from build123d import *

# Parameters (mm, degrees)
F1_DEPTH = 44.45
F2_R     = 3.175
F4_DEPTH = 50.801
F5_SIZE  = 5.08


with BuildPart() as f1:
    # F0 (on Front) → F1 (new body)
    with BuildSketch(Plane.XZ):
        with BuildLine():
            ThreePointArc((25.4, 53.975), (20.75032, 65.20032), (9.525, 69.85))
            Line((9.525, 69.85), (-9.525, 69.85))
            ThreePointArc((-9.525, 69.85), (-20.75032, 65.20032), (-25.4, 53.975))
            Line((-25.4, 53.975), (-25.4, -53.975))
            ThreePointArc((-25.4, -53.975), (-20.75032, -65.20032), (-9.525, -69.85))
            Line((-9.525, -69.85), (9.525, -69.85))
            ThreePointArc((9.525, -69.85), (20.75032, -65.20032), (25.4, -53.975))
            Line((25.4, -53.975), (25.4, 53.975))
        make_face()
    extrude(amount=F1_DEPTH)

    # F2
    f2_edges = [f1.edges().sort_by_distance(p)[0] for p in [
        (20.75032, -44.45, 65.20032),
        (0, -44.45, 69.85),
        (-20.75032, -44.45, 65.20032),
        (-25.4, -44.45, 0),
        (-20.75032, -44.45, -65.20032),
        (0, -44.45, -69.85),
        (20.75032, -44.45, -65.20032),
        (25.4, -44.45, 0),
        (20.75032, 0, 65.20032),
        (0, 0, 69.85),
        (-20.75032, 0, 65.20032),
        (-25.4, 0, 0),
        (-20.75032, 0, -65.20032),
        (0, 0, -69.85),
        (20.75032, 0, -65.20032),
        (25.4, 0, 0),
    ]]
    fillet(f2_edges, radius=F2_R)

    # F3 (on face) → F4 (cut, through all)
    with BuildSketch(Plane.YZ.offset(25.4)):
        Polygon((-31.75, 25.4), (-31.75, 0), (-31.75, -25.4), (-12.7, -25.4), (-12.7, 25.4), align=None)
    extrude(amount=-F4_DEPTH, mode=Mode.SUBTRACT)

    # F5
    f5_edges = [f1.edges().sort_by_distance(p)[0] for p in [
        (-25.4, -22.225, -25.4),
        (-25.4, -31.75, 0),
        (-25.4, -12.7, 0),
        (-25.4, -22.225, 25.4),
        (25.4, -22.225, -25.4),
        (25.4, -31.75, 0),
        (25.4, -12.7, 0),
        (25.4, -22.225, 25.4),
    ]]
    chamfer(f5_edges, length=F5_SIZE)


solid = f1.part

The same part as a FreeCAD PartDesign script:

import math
import FreeCAD as App
import Part
import Sketcher

V = App.Vector
Q = App.Units.Quantity


def edges_at(feature, points):
    """Names of the edges that pass closest to the given points."""
    edges = feature.Shape.Edges
    near = lambda p: min(range(len(edges)), key=lambda i: edges[i].distToShape(Part.Vertex(*p))[0])
    return sorted({f"Edge{near(p) + 1}" for p in points})

doc = App.newDocument("Part")
body = doc.addObject("PartDesign::Body", "Body")

# Sketch on XZ plane
sketch1 = doc.addObject("Sketcher::SketchObject", "Sketch")
body.addObject(sketch1)
sketch1.AttachmentSupport = (doc.XZ_Plane, [""])
sketch1.MapMode = "FlatFace"
sketch1.addGeometry(Part.ArcOfCircle(Part.Circle(V(9.524999, 53.974999, 0), V(0, 0, 1), 15.875001), math.radians(0.000002), math.radians(89.999998)), False)
sketch1.addGeometry(Part.LineSegment(V(9.525, 69.85, 0), V(-9.525, 69.85, 0)), False)
sketch1.addGeometry(Part.ArcOfCircle(Part.Circle(V(-9.524999, 53.974999, 0), V(0, 0, 1), 15.875001), math.radians(90.000002), math.radians(179.999998)), False)
sketch1.addGeometry(Part.LineSegment(V(-25.4, 53.975, 0), V(-25.4, -53.975, 0)), False)
sketch1.addGeometry(Part.ArcOfCircle(Part.Circle(V(-9.524999, -53.974999, 0), V(0, 0, 1), 15.875001), math.radians(-179.999998), math.radians(-90.000002)), False)
sketch1.addGeometry(Part.LineSegment(V(-9.525, -69.85, 0), V(9.525, -69.85, 0)), False)
sketch1.addGeometry(Part.ArcOfCircle(Part.Circle(V(9.524999, -53.974999, 0), V(0, 0, 1), 15.875001), math.radians(-89.999998), math.radians(-0.000002)), False)
sketch1.addGeometry(Part.LineSegment(V(25.4, -53.975, 0), V(25.4, 53.975, 0)), False)
sketch1.addConstraint(Sketcher.Constraint("Tangent", 0, 2, 1, 1))
sketch1.addConstraint(Sketcher.Constraint("Tangent", 1, 2, 2, 1))
sketch1.addConstraint(Sketcher.Constraint("Tangent", 2, 2, 3, 1))
sketch1.addConstraint(Sketcher.Constraint("Tangent", 3, 2, 4, 1))
sketch1.addConstraint(Sketcher.Constraint("Tangent", 4, 2, 5, 1))
sketch1.addConstraint(Sketcher.Constraint("Tangent", 5, 2, 6, 1))
sketch1.addConstraint(Sketcher.Constraint("Tangent", 6, 2, 7, 1))
sketch1.addConstraint(Sketcher.Constraint("Tangent", 7, 2, 0, 1))
sketch1.addConstraint(Sketcher.Constraint("Horizontal", 1))
sketch1.addConstraint(Sketcher.Constraint("Vertical", 3))
sketch1.addConstraint(Sketcher.Constraint("Horizontal", 5))
sketch1.addConstraint(Sketcher.Constraint("Vertical", 7))
sketch1.addConstraint(Sketcher.Constraint("Equal", 0, 2))
sketch1.addConstraint(Sketcher.Constraint("Equal", 2, 4))
sketch1.addConstraint(Sketcher.Constraint("Equal", 4, 6))
sketch1.addConstraint(Sketcher.Constraint("Symmetric", 0, 3, 4, 3, -1, 1))
sketch1.addConstraint(Sketcher.Constraint("DistanceX", 2, 2, -1, 1, Q("1 in")))
sketch1.addConstraint(Sketcher.Constraint("Radius", 0, Q("0.625 in")))
sketch1.addConstraint(Sketcher.Constraint("DistanceY", 3, 2, 3, 1, Q("4.25 in")))
pad1 = doc.addObject("PartDesign::Pad", "Pad")
body.addObject(pad1)
pad1.Profile = sketch1
pad1.Length = Q("1.75 in")
doc.recompute()

fillet = doc.addObject("PartDesign::Fillet", "Fillet")
body.addObject(fillet)
fillet.Base = (pad1, edges_at(pad1, [
    (20.75, -44.45, 65.2),
    (0, -44.45, 69.85),
    (-20.75, -44.45, 65.2),
    (-25.4, -44.45, 0),
    (-20.75, -44.45, -65.2),
    (0, -44.45, -69.85),
    (20.75, -44.45, -65.2),
    (25.4, -44.45, 0),
    (20.75, 0, 65.2),
    (0, 0, 69.85),
    (-20.75, 0, 65.2),
    (-25.4, 0, 0),
    (-20.75, 0, -65.2),
    (0, 0, -69.85),
    (20.75, 0, -65.2),
    (25.4, 0, 0),
]))
fillet.Radius = Q("0.125 in")

# Sketch on YZ plane
sketch2 = doc.addObject("Sketcher::SketchObject", "Sketch001")
body.addObject(sketch2)
sketch2.AttachmentSupport = (doc.YZ_Plane, [""])
sketch2.MapMode = "FlatFace"
sketch2.AttachmentOffset = App.Placement(V(0, 0, 1 * 25.4), App.Rotation())
sketch2.addGeometry(Part.LineSegment(V(-31.75, 25.4, 0), V(-31.75, -25.4, 0)), False)
sketch2.addGeometry(Part.LineSegment(V(-31.75, -25.4, 0), V(-12.7, -25.4, 0)), False)
sketch2.addGeometry(Part.LineSegment(V(-12.7, -25.4, 0), V(-12.7, 25.4, 0)), False)
sketch2.addGeometry(Part.LineSegment(V(-12.7, 25.4, 0), V(-31.75, 25.4, 0)), False)
sketch2.addConstraint(Sketcher.Constraint("Coincident", 0, 2, 1, 1))
sketch2.addConstraint(Sketcher.Constraint("Coincident", 1, 2, 2, 1))
sketch2.addConstraint(Sketcher.Constraint("Coincident", 2, 2, 3, 1))
sketch2.addConstraint(Sketcher.Constraint("Coincident", 3, 2, 0, 1))
sketch2.addConstraint(Sketcher.Constraint("Vertical", 0))
sketch2.addConstraint(Sketcher.Constraint("Horizontal", 1))
sketch2.addConstraint(Sketcher.Constraint("Vertical", 2))
sketch2.addConstraint(Sketcher.Constraint("Horizontal", 3))
sketch2.addConstraint(Sketcher.Constraint("DistanceY", 0, 2, 0, 1, Q("2 in")))
sketch2.addConstraint(Sketcher.Constraint("DistanceY", 0, 2, -1, 1, Q("1 in")))
sketch2.addConstraint(Sketcher.Constraint("DistanceX", 1, 1, 1, 2, Q("0.75 in")))
sketch2.addConstraint(Sketcher.Constraint("DistanceX", 1, 2, -1, 1, Q("0.5 in")))
pocket1 = doc.addObject("PartDesign::Pocket", "Pocket")
body.addObject(pocket1)
pocket1.Profile = sketch2
pocket1.Type = "ThroughAll"
doc.recompute()

chamfer = doc.addObject("PartDesign::Chamfer", "Chamfer")
body.addObject(chamfer)
chamfer.Base = (pocket1, edges_at(pocket1, [
    (-25.4, -22.225, -25.4),
    (-25.4, -31.75, 0),
    (-25.4, -12.7, 0),
    (-25.4, -22.225, 25.4),
    (25.4, -22.225, -25.4),
    (25.4, -31.75, 0),
    (25.4, -12.7, 0),
    (25.4, -22.225, 25.4),
]))
chamfer.Size = Q("0.2 in")

doc.recompute()
